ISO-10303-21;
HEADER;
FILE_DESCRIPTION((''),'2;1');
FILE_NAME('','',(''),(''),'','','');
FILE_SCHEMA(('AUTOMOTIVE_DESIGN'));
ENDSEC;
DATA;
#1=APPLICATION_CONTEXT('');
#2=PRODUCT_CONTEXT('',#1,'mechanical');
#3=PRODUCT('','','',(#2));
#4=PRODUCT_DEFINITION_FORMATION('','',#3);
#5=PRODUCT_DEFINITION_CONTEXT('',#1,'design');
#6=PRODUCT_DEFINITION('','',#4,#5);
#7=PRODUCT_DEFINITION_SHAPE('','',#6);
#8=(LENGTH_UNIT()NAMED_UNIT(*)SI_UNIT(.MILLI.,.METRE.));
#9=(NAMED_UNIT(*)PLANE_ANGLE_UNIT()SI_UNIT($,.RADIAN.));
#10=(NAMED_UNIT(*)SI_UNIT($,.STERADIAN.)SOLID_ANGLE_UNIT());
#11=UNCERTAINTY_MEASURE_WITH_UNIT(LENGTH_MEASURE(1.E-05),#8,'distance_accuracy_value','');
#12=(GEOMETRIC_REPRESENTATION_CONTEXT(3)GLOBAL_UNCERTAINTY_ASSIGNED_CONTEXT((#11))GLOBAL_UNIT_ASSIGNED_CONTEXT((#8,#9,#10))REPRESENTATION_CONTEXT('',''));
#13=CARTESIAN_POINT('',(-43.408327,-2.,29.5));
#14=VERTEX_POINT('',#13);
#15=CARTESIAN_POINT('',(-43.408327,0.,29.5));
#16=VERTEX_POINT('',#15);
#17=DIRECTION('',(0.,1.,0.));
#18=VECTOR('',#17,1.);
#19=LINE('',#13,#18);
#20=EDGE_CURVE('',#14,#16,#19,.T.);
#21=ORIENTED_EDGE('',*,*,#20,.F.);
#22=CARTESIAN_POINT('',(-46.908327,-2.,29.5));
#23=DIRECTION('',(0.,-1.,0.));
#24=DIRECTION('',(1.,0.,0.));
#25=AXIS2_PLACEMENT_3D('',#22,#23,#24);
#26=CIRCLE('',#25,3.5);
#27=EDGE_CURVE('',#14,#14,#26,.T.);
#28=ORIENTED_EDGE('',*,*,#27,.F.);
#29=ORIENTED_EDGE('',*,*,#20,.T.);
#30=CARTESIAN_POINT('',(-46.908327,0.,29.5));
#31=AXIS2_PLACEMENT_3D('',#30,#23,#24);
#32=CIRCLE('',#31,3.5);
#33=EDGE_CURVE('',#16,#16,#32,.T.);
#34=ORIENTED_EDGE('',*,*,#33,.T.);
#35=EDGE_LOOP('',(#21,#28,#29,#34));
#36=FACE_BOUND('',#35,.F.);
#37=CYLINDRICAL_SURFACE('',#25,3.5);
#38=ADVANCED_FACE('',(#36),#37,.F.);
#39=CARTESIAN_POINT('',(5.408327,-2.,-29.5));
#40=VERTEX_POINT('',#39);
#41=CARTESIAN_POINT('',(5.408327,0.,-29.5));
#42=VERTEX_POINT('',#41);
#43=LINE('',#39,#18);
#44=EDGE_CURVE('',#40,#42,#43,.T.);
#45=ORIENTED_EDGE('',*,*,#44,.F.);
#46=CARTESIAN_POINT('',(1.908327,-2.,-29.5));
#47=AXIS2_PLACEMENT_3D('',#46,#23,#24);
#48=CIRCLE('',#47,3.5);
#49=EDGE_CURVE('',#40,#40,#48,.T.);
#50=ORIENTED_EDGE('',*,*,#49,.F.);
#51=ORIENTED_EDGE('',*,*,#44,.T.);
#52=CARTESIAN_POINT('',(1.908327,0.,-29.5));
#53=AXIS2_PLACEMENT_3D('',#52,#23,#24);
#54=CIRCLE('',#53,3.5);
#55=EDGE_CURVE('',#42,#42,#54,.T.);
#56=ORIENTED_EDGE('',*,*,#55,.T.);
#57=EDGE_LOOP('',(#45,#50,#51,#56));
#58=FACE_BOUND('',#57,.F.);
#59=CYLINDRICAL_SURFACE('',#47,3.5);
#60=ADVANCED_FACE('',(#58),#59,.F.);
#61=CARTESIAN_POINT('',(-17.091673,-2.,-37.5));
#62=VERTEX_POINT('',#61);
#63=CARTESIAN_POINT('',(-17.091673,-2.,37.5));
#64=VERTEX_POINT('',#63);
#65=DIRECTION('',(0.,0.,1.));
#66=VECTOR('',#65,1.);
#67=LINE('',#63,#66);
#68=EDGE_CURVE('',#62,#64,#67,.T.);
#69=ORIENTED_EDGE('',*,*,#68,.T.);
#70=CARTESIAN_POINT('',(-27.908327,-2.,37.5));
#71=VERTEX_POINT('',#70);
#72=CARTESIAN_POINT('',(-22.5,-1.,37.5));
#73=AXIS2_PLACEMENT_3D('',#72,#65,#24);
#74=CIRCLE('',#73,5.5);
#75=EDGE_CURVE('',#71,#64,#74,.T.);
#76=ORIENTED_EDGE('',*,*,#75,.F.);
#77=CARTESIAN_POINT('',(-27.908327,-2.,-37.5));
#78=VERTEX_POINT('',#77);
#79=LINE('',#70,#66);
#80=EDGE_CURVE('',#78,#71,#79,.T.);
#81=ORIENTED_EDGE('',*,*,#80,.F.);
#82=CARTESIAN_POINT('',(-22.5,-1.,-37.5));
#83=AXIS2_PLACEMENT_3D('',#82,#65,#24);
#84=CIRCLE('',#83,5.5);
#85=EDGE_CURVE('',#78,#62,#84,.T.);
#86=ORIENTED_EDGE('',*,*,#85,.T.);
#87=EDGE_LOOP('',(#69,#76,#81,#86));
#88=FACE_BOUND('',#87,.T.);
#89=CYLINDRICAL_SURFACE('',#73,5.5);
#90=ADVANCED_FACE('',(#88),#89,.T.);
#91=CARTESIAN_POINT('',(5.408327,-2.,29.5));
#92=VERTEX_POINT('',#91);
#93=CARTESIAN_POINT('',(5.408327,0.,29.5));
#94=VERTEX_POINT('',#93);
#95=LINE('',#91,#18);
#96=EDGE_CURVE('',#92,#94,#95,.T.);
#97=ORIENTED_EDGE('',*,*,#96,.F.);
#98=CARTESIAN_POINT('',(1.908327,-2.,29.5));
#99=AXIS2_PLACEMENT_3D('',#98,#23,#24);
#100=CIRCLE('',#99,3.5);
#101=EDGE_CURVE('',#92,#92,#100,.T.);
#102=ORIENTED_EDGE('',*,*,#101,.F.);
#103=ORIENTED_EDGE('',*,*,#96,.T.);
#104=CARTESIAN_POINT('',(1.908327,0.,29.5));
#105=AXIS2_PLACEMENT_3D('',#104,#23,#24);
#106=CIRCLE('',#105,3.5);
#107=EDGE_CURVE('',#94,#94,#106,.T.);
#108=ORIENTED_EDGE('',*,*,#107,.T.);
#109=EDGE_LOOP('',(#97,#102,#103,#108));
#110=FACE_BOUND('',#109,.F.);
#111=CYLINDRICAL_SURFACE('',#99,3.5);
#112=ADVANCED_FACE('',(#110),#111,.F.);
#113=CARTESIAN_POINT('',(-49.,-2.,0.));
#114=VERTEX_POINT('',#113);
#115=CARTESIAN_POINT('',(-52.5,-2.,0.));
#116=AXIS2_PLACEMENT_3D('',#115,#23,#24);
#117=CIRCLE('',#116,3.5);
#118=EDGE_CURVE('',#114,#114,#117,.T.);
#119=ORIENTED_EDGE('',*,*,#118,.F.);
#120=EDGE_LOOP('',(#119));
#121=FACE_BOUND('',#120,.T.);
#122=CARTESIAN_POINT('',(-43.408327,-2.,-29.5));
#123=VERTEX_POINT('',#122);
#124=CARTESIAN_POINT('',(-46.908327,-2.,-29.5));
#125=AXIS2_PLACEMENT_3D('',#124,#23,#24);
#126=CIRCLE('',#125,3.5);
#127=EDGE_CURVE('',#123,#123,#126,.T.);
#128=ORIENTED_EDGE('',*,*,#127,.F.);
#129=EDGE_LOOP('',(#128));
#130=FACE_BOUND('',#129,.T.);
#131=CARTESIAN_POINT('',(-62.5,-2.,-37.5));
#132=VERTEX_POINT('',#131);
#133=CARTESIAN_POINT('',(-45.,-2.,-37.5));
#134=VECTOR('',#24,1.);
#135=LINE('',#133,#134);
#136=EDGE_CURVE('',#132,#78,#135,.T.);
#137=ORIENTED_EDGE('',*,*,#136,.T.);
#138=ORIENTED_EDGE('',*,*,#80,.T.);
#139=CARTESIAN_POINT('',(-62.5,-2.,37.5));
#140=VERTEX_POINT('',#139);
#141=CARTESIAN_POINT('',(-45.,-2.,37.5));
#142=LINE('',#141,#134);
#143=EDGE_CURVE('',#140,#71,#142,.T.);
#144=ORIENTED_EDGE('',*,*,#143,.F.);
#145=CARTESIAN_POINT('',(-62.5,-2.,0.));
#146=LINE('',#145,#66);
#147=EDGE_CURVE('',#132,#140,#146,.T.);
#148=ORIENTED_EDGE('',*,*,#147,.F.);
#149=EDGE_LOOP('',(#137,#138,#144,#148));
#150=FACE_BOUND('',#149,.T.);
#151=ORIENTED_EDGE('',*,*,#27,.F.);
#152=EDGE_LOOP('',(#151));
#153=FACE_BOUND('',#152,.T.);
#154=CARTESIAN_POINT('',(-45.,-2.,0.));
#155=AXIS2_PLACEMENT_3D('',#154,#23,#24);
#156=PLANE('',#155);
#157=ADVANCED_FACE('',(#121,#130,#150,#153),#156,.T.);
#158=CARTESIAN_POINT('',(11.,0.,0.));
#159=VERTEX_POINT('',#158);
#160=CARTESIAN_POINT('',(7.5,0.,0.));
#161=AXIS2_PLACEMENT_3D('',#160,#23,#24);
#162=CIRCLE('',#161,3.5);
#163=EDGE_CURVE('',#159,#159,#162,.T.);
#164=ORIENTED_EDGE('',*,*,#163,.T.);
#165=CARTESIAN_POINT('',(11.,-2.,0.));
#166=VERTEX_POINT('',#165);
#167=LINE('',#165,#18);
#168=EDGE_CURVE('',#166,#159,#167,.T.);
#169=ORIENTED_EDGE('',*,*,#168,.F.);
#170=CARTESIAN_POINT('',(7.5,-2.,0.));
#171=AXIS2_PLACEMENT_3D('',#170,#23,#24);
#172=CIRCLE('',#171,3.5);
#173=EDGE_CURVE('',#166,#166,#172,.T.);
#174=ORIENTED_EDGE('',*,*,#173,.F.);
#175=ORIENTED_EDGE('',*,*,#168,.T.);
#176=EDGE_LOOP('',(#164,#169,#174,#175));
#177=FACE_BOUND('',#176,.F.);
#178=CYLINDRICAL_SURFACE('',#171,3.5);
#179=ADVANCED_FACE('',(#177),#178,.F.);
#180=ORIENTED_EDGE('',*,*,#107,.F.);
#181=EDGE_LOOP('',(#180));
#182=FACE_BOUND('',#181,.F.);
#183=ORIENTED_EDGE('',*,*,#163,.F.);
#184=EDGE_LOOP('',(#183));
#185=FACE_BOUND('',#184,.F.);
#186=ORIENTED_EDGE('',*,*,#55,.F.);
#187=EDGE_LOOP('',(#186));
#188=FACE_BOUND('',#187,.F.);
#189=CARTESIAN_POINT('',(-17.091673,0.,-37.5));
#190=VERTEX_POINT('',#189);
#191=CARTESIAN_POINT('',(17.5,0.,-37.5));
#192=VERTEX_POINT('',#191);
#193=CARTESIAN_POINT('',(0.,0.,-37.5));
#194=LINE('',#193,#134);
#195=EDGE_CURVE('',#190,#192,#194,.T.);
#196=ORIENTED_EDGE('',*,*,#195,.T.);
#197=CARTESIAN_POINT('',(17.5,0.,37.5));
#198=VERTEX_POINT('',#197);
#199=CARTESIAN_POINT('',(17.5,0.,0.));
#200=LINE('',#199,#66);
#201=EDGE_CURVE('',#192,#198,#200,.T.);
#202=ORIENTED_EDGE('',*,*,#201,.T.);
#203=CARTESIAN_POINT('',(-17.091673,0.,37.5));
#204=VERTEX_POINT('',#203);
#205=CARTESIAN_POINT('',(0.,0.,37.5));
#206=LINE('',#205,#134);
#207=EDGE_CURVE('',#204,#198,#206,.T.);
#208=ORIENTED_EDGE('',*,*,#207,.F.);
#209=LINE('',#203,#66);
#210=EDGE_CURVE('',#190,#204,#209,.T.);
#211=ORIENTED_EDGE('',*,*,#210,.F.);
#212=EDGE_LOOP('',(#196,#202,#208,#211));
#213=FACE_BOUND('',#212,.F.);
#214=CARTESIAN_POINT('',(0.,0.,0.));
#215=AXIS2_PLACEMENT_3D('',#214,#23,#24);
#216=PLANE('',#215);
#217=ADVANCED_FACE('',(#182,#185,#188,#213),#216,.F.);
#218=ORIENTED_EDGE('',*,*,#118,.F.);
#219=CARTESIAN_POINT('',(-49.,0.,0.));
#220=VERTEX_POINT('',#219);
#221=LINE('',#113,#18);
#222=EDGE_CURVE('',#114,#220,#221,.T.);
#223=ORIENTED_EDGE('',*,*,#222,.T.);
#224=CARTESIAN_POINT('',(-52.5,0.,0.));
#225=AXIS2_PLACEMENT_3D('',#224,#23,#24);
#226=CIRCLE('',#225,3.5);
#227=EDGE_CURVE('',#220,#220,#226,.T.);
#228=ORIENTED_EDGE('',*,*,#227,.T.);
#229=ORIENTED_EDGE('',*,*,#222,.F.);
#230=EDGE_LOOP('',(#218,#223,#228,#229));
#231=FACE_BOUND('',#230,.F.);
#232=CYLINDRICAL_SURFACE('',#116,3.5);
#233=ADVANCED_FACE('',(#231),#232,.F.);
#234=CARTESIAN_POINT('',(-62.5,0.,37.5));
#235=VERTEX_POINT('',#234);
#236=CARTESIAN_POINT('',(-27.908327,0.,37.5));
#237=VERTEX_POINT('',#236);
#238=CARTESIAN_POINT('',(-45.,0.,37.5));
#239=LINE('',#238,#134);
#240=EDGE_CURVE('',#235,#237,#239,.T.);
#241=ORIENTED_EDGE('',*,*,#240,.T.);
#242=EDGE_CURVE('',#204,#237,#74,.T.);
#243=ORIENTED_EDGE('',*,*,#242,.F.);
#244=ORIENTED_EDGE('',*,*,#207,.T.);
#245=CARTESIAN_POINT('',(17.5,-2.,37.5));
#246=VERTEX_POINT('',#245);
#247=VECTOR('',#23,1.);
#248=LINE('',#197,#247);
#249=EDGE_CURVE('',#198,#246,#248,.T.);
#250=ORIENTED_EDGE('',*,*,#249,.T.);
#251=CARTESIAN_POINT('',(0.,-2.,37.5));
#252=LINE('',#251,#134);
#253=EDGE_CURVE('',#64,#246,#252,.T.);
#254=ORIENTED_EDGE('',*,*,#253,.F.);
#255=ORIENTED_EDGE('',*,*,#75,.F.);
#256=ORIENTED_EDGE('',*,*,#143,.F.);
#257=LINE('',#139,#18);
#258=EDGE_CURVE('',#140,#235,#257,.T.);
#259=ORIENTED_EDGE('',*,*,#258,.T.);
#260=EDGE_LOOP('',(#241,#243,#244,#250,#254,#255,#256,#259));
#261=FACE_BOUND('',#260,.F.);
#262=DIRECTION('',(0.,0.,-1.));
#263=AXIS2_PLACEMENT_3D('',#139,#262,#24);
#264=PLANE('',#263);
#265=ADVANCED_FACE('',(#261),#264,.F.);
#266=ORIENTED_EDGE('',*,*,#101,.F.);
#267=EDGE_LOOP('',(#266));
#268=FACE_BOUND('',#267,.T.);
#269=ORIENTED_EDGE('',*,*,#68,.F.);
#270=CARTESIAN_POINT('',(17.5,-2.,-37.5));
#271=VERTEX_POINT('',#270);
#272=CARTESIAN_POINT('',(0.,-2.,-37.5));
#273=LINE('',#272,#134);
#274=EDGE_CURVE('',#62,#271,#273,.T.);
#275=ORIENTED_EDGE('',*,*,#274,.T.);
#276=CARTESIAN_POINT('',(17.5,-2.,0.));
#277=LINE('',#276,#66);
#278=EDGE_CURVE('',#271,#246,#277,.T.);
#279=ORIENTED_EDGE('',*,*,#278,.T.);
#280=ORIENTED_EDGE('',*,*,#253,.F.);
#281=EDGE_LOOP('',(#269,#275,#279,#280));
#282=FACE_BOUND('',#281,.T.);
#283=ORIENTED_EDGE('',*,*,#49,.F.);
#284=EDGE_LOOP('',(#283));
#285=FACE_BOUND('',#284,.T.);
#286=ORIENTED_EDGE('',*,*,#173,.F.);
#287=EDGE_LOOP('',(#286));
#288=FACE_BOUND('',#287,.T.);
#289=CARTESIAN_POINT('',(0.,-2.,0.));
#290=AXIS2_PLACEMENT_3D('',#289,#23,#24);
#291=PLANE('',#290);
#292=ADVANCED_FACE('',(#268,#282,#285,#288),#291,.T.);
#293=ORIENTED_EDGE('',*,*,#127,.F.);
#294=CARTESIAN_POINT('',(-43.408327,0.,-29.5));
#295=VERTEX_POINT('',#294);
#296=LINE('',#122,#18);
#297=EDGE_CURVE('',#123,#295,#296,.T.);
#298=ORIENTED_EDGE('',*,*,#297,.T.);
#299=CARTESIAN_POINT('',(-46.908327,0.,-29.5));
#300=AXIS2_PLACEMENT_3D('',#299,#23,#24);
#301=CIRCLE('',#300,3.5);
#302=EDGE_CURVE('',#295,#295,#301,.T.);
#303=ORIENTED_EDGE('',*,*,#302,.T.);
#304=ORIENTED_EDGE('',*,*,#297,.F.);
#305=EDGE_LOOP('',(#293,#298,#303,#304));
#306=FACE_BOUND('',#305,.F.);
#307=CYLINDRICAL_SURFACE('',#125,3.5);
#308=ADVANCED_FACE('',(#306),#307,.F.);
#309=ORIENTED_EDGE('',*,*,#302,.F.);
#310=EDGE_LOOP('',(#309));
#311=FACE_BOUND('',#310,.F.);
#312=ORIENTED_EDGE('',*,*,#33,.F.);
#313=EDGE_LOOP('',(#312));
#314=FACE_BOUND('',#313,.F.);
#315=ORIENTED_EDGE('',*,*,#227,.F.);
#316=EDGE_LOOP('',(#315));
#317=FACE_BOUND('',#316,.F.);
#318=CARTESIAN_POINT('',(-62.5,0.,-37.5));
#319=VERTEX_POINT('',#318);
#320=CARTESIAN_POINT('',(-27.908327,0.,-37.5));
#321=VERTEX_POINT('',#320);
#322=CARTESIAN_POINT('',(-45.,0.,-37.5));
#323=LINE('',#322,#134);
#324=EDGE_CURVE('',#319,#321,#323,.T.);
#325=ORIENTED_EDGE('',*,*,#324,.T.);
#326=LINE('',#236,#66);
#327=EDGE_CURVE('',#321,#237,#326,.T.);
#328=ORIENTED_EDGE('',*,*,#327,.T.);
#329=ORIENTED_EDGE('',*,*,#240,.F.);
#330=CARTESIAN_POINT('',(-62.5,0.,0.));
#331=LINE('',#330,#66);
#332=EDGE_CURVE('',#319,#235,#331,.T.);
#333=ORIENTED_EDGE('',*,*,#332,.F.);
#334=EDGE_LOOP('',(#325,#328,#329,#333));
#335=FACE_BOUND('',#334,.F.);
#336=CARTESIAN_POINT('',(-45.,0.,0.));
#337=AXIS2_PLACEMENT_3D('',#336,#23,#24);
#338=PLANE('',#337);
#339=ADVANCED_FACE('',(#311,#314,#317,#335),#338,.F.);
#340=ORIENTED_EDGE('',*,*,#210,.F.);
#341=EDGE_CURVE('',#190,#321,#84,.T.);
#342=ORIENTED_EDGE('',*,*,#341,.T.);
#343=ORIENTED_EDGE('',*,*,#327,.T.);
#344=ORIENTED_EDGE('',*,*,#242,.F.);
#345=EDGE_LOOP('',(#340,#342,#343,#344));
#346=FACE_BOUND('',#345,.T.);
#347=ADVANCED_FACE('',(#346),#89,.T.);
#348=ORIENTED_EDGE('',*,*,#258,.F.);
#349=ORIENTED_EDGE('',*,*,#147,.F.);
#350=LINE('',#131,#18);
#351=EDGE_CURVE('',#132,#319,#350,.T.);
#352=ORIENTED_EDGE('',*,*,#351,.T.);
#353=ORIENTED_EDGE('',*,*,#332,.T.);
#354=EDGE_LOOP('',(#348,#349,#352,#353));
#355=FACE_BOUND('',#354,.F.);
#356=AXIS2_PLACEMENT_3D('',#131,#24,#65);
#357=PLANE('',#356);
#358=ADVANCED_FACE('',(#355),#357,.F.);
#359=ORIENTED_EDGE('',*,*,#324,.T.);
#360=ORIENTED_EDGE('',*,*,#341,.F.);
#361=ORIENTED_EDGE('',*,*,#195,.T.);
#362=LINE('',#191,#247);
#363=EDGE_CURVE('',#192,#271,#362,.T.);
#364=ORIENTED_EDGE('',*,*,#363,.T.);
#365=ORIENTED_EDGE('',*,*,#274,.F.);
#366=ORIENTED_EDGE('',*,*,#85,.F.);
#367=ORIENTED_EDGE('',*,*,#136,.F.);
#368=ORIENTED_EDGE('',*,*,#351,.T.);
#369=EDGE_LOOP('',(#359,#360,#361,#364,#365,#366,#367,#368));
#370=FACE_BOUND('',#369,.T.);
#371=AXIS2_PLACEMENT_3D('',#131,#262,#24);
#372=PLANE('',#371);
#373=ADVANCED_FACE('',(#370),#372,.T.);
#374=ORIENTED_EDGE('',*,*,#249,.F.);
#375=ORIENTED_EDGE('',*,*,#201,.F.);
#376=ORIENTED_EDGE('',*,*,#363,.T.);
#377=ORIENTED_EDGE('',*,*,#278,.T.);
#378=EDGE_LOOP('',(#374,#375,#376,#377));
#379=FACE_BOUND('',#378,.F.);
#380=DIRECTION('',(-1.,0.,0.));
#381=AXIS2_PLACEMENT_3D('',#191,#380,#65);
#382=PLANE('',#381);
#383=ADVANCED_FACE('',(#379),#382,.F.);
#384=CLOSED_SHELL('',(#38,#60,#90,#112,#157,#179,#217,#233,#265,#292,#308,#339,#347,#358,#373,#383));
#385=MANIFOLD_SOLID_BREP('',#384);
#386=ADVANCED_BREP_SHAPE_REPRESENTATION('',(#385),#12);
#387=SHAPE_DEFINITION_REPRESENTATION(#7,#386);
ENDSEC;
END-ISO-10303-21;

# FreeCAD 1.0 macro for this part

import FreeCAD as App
import Part
import Sketcher
from FreeCAD import Vector
Q = App.Units.Quantity

doc = App.newDocument("Part")
body = doc.addObject("PartDesign::Body", "Body")

sketch1 = body.newObject("Sketcher::SketchObject", "Sketch")
sketch1.AttachmentSupport = (doc.getObject("XZ_Plane"), [""])
sketch1.MapMode = "FlatFace"
sketch1.addGeometry(Part.LineSegment(Vector(-18, 38, 0), Vector(-18, -38, 0)), False)
sketch1.addGeometry(Part.LineSegment(Vector(-18, -38, 0), Vector(18, -38, 0)), False)
sketch1.addGeometry(Part.LineSegment(Vector(18, -38, 0), Vector(18, 38, 0)), False)
sketch1.addGeometry(Part.LineSegment(Vector(18, 38, 0), Vector(-18, 38, 0)), False)
sketch1.addConstraint(Sketcher.Constraint("Coincident", 0, 2, 1, 1))
sketch1.addConstraint(Sketcher.Constraint("Coincident", 1, 2, 2, 1))
sketch1.addConstraint(Sketcher.Constraint("Coincident", 2, 2, 3, 1))
sketch1.addConstraint(Sketcher.Constraint("Coincident", 3, 2, 0, 1))
sketch1.addConstraint(Sketcher.Constraint("Vertical", 0))
sketch1.addConstraint(Sketcher.Constraint("Horizontal", 1))
sketch1.addConstraint(Sketcher.Constraint("Vertical", 2))
sketch1.addConstraint(Sketcher.Constraint("Horizontal", 3))
sketch1.addConstraint(Sketcher.Constraint("Symmetric", 0, 2, 2, 2, -1, 1))
sketch1.addConstraint(Sketcher.Constraint("DistanceX", 1, 1, 1, 2, Q("35 mm")))
sketch1.addConstraint(Sketcher.Constraint("DistanceY", 0, 2, 0, 1, Q("75 mm")))
pad1 = body.newObject("PartDesign::Pad", "Pad")
pad1.Profile = sketch1
pad1.Length = 2
body2 = doc.addObject("PartDesign::Body", "Body001")

sketch2 = body2.newObject("Sketcher::SketchObject", "Sketch001")
sketch2.AttachmentSupport = (doc.getObject("XY_Plane001"), [""])
sketch2.MapMode = "FlatFace"
sketch2.AttachmentOffset = App.Placement(Vector(0, 0, 37.5), App.Rotation())
sketch2.addGeometry(Part.Circle(Vector(-22, -1, 0), Vector(0, 0, 1), 6), False)
sketch2.addConstraint(Sketcher.Constraint("Diameter", 0, Q("11 mm")))
sketch2.addConstraint(Sketcher.Constraint("DistanceY", 0, 3, -1, 1, Q("1 mm")))
sketch2.addConstraint(Sketcher.Constraint("DistanceX", 0, 3, -1, 1, Q("22.5 mm")))
pad2 = body2.newObject("PartDesign::Pad", "Pad001")
pad2.Profile = sketch2
pad2.Length = 75
pad2.Reversed = True
body3 = doc.addObject("PartDesign::Body", "Body002")

sketch3 = body3.newObject("Sketcher::SketchObject", "Sketch002")
sketch3.AttachmentSupport = (doc.getObject("XZ_Plane002"), [""])
sketch3.MapMode = "FlatFace"
sketch3.AttachmentOffset = App.Placement(Vector(0, 0, 2), App.Rotation())
sketch3.addGeometry(Part.LineSegment(Vector(-62, 38, 0), Vector(-62, -38, 0)), False)
sketch3.addGeometry(Part.LineSegment(Vector(-62, -38, 0), Vector(-28, -38, 0)), False)
sketch3.addGeometry(Part.LineSegment(Vector(-28, -38, 0), Vector(-28, 38, 0)), False)
sketch3.addGeometry(Part.LineSegment(Vector(-28, 38, 0), Vector(-62, 38, 0)), False)
sketch3.addConstraint(Sketcher.Constraint("Coincident", 0, 2, 1, 1))
sketch3.addConstraint(Sketcher.Constraint("Coincident", 1, 2, 2, 1))
sketch3.addConstraint(Sketcher.Constraint("Coincident", 2, 2, 3, 1))
sketch3.addConstraint(Sketcher.Constraint("Coincident", 3, 2, 0, 1))
sketch3.addConstraint(Sketcher.Constraint("Vertical", 0))
sketch3.addConstraint(Sketcher.Constraint("Horizontal", 1))
sketch3.addConstraint(Sketcher.Constraint("Vertical", 2))
sketch3.addConstraint(Sketcher.Constraint("Horizontal", 3))
sketch3.addConstraint(Sketcher.Constraint("DistanceX", 1, 1, 1, 2, Q("35 mm")))
sketch3.addConstraint(Sketcher.Constraint("DistanceY", 0, 2, 0, 1, Q("75 mm")))
sketch3.addConstraint(Sketcher.Constraint("DistanceX", 0, 2, -1, 1, Q("62.5 mm")))
sketch3.addConstraint(Sketcher.Constraint("DistanceY", 0, 2, -1, 1, Q("37.5 mm")))
pad3 = body3.newObject("PartDesign::Pad", "Pad002")
pad3.Profile = sketch3
pad3.Length = 2
pad3.Reversed = True
doc.recompute()

boolean = body.newObject("PartDesign::Boolean", "Boolean")
boolean.Type = "Fuse"
boolean.addObjects([body2])
doc.recompute()

boolean2 = body.newObject("PartDesign::Boolean", "Boolean001")
boolean2.Type = "Fuse"
boolean2.addObjects([body3])

sketch4 = body.newObject("Sketcher::SketchObject", "Sketch003")
sketch4.AttachmentSupport = (doc.getObject("XZ_Plane"), [""])
sketch4.MapMode = "FlatFace"
sketch4.AttachmentOffset = App.Placement(Vector(0, 0, 2), App.Rotation())
sketch4.addGeometry(Part.Circle(Vector(1.9, -29.5, 0), Vector(0, 0, 1), 3.5), False)
sketch4.addGeometry(Part.Circle(Vector(1.9, 29.5, 0), Vector(0, 0, 1), 3.5), False)
sketch4.addGeometry(Part.Circle(Vector(7.5, 0, 0), Vector(0, 0, 1), 3.5), False)
sketch4.addConstraint(Sketcher.Constraint("Equal", 0, 1))
sketch4.addConstraint(Sketcher.Constraint("Equal", 1, 2))
sketch4.addConstraint(Sketcher.Constraint("Symmetric", 0, 3, 1, 3, -1))
sketch4.addConstraint(Sketcher.Constraint("PointOnObject", 2, 3, -1))
sketch4.addConstraint(Sketcher.Constraint("Diameter", 0, Q("7 mm")))
sketch4.addConstraint(Sketcher.Constraint("DistanceY", 0, 3, 1, 3, Q("59 mm")))
sketch4.addConstraint(Sketcher.Constraint("DistanceX", -1, 1, 2, 3, Q("7.5 mm")))
sketch4.addConstraint(Sketcher.Constraint("DistanceX", -1, 1, 0, 3, Q("1.908327 mm")))
pocket1 = body.newObject("PartDesign::Pocket", "Pocket")
pocket1.Profile = sketch4
pocket1.Type = "ThroughAll"

sketch5 = body.newObject("Sketcher::SketchObject", "Sketch004")
sketch5.AttachmentSupport = (doc.getObject("XZ_Plane"), [""])
sketch5.MapMode = "FlatFace"
sketch5.AttachmentOffset = App.Placement(Vector(0, 0, 2), App.Rotation())
sketch5.addGeometry(Part.Circle(Vector(-46.9, -29.5, 0), Vector(0, 0, 1), 3.5), False)
sketch5.addGeometry(Part.Circle(Vector(-46.9, 29.5, 0), Vector(0, 0, 1), 3.5), False)
sketch5.addGeometry(Part.Circle(Vector(-52.5, 0, 0), Vector(0, 0, 1), 3.5), False)
sketch5.addConstraint(Sketcher.Constraint("Equal", 0, 1))
sketch5.addConstraint(Sketcher.Constraint("Equal", 1, 2))
sketch5.addConstraint(Sketcher.Constraint("Symmetric", 0, 3, 1, 3, -1))
sketch5.addConstraint(Sketcher.Constraint("PointOnObject", 2, 3, -1))
sketch5.addConstraint(Sketcher.Constraint("Diameter", 0, Q("7 mm")))
sketch5.addConstraint(Sketcher.Constraint("DistanceY", 0, 3, 1, 3, Q("59 mm")))
sketch5.addConstraint(Sketcher.Constraint("DistanceX", 2, 3, -1, 1, Q("52.5 mm")))
sketch5.addConstraint(Sketcher.Constraint("DistanceX", 0, 3, -1, 1, Q("46.908327 mm")))
pocket2 = body.newObject("PartDesign::Pocket", "Pocket001")
pocket2.Profile = sketch5
pocket2.Type = "ThroughAll"

doc.recompute()
